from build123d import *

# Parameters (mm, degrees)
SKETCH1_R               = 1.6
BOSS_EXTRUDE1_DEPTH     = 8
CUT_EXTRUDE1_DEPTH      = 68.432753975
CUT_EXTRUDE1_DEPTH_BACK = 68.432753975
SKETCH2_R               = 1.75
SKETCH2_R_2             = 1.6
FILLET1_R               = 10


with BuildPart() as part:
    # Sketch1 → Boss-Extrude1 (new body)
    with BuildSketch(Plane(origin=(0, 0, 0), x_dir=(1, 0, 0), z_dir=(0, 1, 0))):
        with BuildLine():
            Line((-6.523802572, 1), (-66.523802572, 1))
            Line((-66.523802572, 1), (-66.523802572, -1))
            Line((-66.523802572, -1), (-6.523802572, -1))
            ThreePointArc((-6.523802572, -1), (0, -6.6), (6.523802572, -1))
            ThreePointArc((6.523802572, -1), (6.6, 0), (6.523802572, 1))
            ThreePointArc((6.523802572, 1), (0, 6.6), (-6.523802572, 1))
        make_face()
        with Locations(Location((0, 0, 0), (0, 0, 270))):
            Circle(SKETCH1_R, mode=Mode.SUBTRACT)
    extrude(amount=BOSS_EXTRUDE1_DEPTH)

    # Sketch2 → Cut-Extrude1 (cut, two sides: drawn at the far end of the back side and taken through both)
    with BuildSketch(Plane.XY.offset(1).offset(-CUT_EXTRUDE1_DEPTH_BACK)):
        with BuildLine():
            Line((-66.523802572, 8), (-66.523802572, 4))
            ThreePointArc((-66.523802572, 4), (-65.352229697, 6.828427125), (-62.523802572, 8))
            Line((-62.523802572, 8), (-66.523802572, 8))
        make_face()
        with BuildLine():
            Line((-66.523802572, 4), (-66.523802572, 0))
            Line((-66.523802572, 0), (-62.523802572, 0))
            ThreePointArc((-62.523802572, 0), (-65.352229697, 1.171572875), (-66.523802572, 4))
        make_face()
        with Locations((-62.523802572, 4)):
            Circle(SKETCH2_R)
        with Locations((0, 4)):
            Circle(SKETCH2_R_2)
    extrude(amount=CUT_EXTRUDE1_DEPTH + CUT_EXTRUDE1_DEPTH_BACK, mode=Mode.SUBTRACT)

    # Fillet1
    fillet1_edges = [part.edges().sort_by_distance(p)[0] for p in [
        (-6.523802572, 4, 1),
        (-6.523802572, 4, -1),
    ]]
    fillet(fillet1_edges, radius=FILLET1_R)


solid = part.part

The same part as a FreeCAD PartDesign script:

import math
import FreeCAD as App
import Part
import Sketcher

V = App.Vector
Q = App.Units.Quantity


def edges_at(feature, points):
    """Names of the edges that pass closest to the given points."""
    edges = feature.Shape.Edges
    near = lambda p: min(range(len(edges)), key=lambda i: edges[i].distToShape(Part.Vertex(*p))[0])
    return sorted({f"Edge{near(p) + 1}" for p in points})

doc = App.newDocument("Part")
body = doc.addObject("PartDesign::Body", "Body")

# Sketch on XZ plane
sketch1 = doc.addObject("Sketcher::SketchObject", "Sketch")
body.addObject(sketch1)
sketch1.AttachmentSupport = (doc.XZ_Plane, [""])
sketch1.MapMode = "FlatFace"
sketch1.addGeometry(Part.LineSegment(V(-6.5, -1, 0), V(-66.5, -1, 0)), False)
sketch1.addGeometry(Part.LineSegment(V(-66.5, -1, 0), V(-66.5, 1, 0)), False)
sketch1.addGeometry(Part.LineSegment(V(-66.5, 1, 0), V(-6.5, 1, 0)), False)
sketch1.addGeometry(Part.ArcOfCircle(Part.Circle(V(0, 0, 0), V(0, 0, 1), 6.6), math.radians(9), math.radians(171)), False)
sketch1.addGeometry(Part.ArcOfCircle(Part.Circle(V(0, 0, 0), V(0, 0, 1), 6.6), math.radians(-8.71), math.radians(8.71)), False)
sketch1.addGeometry(Part.ArcOfCircle(Part.Circle(V(0, 0, 0), V(0, 0, 1), 6.6), math.radians(-171), math.radians(-9)), False)
sketch1.addGeometry(Part.Circle(V(0, 0, 0), V(0, 0, 1), 1.6), False)
sketch1.addConstraint(Sketcher.Constraint("Coincident", 0, 2, 1, 1))
sketch1.addConstraint(Sketcher.Constraint("Coincident", 1, 2, 2, 1))
sketch1.addConstraint(Sketcher.Constraint("Coincident", 2, 2, 3, 2))
sketch1.addConstraint(Sketcher.Constraint("Tangent", 3, 1, 4, 2))
sketch1.addConstraint(Sketcher.Constraint("Tangent", 4, 1, 5, 2))
sketch1.addConstraint(Sketcher.Constraint("Coincident", 5, 1, 0, 1))
sketch1.addConstraint(Sketcher.Constraint("Horizontal", 0))
sketch1.addConstraint(Sketcher.Constraint("Vertical", 1))
sketch1.addConstraint(Sketcher.Constraint("Horizontal", 2))
sketch1.addConstraint(Sketcher.Constraint("Coincident", 3, 3, -1, 1))
sketch1.addConstraint(Sketcher.Constraint("Coincident", 5, 3, -1, 1))
sketch1.addConstraint(Sketcher.Constraint("Coincident", 6, 3, -1, 1))
sketch1.addConstraint(Sketcher.Constraint("Horizontal", 2, 2, 3, 1))
sketch1.addConstraint(Sketcher.Constraint("Horizontal", 0, 2, 4, 1))
sketch1.addConstraint(Sketcher.Constraint("Vertical", 3, 1, 4, 1))
sketch1.addConstraint(Sketcher.Constraint("Diameter", 6, Q("3.2 mm")))
sketch1.addConstraint(Sketcher.Constraint("Radius", 3, Q("6.6 mm")))
sketch1.addConstraint(Sketcher.Constraint("DistanceX", 0, 2, 0, 1, Q("60 mm")))
sketch1.addConstraint(Sketcher.Constraint("DistanceY", 1, 1, 1, 2, Q("2 mm")))
pad1 = doc.addObject("PartDesign::Pad", "Pad")
body.addObject(pad1)
pad1.Profile = sketch1
pad1.Length = 8
pad1.Reversed = True

# Sketch on XY plane
sketch2 = doc.addObject("Sketcher::SketchObject", "Sketch001")
body.addObject(sketch2)
sketch2.AttachmentSupport = (doc.XY_Plane, [""])
sketch2.MapMode = "FlatFace"
sketch2.AttachmentOffset = App.Placement(V(0, 0, 1), App.Rotation())
sketch2.addGeometry(Part.LineSegment(V(-66.5, 8, 0), V(-66.5, 4, 0)), False)
sketch2.addGeometry(Part.ArcOfCircle(Part.Circle(V(-62.5, 4, 0), V(0, 0, 1), 4), math.radians(90), math.radians(180)), False)
sketch2.addGeometry(Part.LineSegment(V(-62.5, 8, 0), V(-66.5, 8, 0)), False)
sketch2.addGeometry(Part.LineSegment(V(-66.5, 4, 0), V(-66.5, 0, 0)), False)
sketch2.addGeometry(Part.LineSegment(V(-66.5, 0, 0), V(-62.5, 0, 0)), False)
sketch2.addGeometry(Part.ArcOfCircle(Part.Circle(V(-62.5, 4, 0), V(0, 0, 1), 4), math.radians(180), math.radians(270)), False)
sketch2.addGeometry(Part.Circle(V(-62.5, 4, 0), V(0, 0, 1), 1.8), False)
sketch2.addGeometry(Part.Circle(V(0, 4, 0), V(0, 0, 1), 1.6), False)
sketch2.addConstraint(Sketcher.Constraint("Tangent", 0, 2, 1, 2))
sketch2.addConstraint(Sketcher.Constraint("Tangent", 1, 1, 2, 1))
sketch2.addConstraint(Sketcher.Constraint("Coincident", 2, 2, 0, 1))
sketch2.addConstraint(Sketcher.Constraint("Coincident", 3, 2, 4, 1))
sketch2.addConstraint(Sketcher.Constraint("Tangent", 4, 2, 5, 2))
sketch2.addConstraint(Sketcher.Constraint("Tangent", 5, 1, 3, 1))
sketch2.addConstraint(Sketcher.Constraint("Vertical", 0))
sketch2.addConstraint(Sketcher.Constraint("Horizontal", 2))
sketch2.addConstraint(Sketcher.Constraint("Vertical", 3))
sketch2.addConstraint(Sketcher.Constraint("Horizontal", 4))
sketch2.addConstraint(Sketcher.Constraint("Coincident", 5, 3, 1, 3))
sketch2.addConstraint(Sketcher.Constraint("Coincident", 6, 3, 1, 3))
sketch2.addConstraint(Sketcher.Constraint("Equal", 1, 5))
sketch2.addConstraint(Sketcher.Constraint("PointOnObject", 7, 3, -2))
sketch2.addConstraint(Sketcher.Constraint("PointOnObject", 3, 2, -1))
sketch2.addConstraint(Sketcher.Constraint("Horizontal", 6, 3, 7, 3))
sketch2.addConstraint(Sketcher.Constraint("Radius", 1, Q("4 mm")))
sketch2.addConstraint(Sketcher.Constraint("Diameter", 6, Q("3.5 mm")))
sketch2.addConstraint(Sketcher.Constraint("Diameter", 7, Q("3.2 mm")))
sketch2.addConstraint(Sketcher.Constraint("DistanceX", 1, 3, -1, 1, Q("62.523803 mm")))
pocket1 = doc.addObject("PartDesign::Pocket", "Pocket")
body.addObject(pocket1)
pocket1.Profile = sketch2
pocket1.Type = "ThroughAll"
pocket1.Midplane = True
doc.recompute()

fillet = doc.addObject("PartDesign::Fillet", "Fillet")
body.addObject(fillet)
fillet.Base = (pocket1, edges_at(pocket1, [(-6.524, 4, 1), (-6.524, 4, -1)]))
fillet.Radius = 10

doc.recompute()
